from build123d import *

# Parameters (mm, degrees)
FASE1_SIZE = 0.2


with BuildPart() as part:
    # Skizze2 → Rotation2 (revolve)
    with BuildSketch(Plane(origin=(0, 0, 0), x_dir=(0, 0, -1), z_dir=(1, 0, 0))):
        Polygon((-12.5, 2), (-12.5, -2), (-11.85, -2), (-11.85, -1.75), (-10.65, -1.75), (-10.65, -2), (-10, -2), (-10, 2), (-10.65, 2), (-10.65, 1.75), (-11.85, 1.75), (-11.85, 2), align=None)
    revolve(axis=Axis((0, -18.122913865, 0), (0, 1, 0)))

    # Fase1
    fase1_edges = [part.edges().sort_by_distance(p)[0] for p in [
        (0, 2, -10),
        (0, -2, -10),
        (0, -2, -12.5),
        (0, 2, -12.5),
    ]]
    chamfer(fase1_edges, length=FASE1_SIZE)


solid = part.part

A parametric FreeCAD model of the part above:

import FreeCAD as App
import Part
import Sketcher

V = App.Vector


def edges_at(feature, points):
    """Names of the edges that pass closest to the given points."""
    edges = feature.Shape.Edges
    near = lambda p: min(range(len(edges)), key=lambda i: edges[i].distToShape(Part.Vertex(*p))[0])
    return sorted({f"Edge{near(p) + 1}" for p in points})

doc = App.newDocument("Part")
body = doc.addObject("PartDesign::Body", "Body")

# Sketch on YZ plane
sketch1 = body.newObject("Sketcher::SketchObject", "Sketch")
sketch1.AttachmentSupport = (doc.getObject("YZ_Plane"), [""])
sketch1.MapMode = "FlatFace"
sketch1.addGeometry([
    Part.LineSegment(V(2, 12.5, 0), V(-2, 12.5, 0)),  # 0
    Part.LineSegment(V(-2, 12.5, 0), V(-2, 11.85, 0)),  # 1
    Part.LineSegment(V(-2, 11.85, 0), V(-1.75, 11.85, 0)),  # 2
    Part.LineSegment(V(-1.75, 11.85, 0), V(-1.75, 10.65, 0)),  # 3
    Part.LineSegment(V(-1.75, 10.65, 0), V(-2, 10.65, 0)),  # 4
    Part.LineSegment(V(-2, 10.65, 0), V(-2, 10, 0)),  # 5
    Part.LineSegment(V(-2, 10, 0), V(2, 10, 0)),  # 6
    Part.LineSegment(V(2, 10, 0), V(2, 10.65, 0)),  # 7
    Part.LineSegment(V(2, 10.65, 0), V(1.75, 10.65, 0)),  # 8
    Part.LineSegment(V(1.75, 10.65, 0), V(1.75, 11.85, 0)),  # 9
    Part.LineSegment(V(1.75, 11.85, 0), V(2, 11.85, 0)),  # 10
    Part.LineSegment(V(2, 11.85, 0), V(2, 12.5, 0)),  # 11
], False)
sketch1.addConstraint([
    Sketcher.Constraint("Coincident", 0, 2, 1, 1),
    Sketcher.Constraint("Coincident", 1, 2, 2, 1),
    Sketcher.Constraint("Coincident", 2, 2, 3, 1),
    Sketcher.Constraint("Coincident", 3, 2, 4, 1),
    Sketcher.Constraint("Coincident", 4, 2, 5, 1),
    Sketcher.Constraint("Coincident", 5, 2, 6, 1),
    Sketcher.Constraint("Coincident", 6, 2, 7, 1),
    Sketcher.Constraint("Coincident", 7, 2, 8, 1),
    Sketcher.Constraint("Coincident", 8, 2, 9, 1),
    Sketcher.Constraint("Coincident", 9, 2, 10, 1),
    Sketcher.Constraint("Coincident", 10, 2, 11, 1),
    Sketcher.Constraint("Coincident", 11, 2, 0, 1),
    Sketcher.Constraint("Horizontal", 0),
    Sketcher.Constraint("Vertical", 1),
    Sketcher.Constraint("Horizontal", 2),
    Sketcher.Constraint("Vertical", 3),
    Sketcher.Constraint("Horizontal", 4),
    Sketcher.Constraint("Vertical", 5),
    Sketcher.Constraint("Horizontal", 6),
    Sketcher.Constraint("Vertical", 7),
    Sketcher.Constraint("Horizontal", 8),
    Sketcher.Constraint("Vertical", 9),
    Sketcher.Constraint("Horizontal", 10),
    Sketcher.Constraint("Vertical", 11),
    Sketcher.Constraint("Symmetric", 4, 2, 7, 2, -2),
    Sketcher.Constraint("Symmetric", 2, 2, 9, 2, -2),
    Sketcher.Constraint("Vertical", 1, 2, 4, 2),
    Sketcher.Constraint("Vertical", 7, 2, 10, 2),
    Sketcher.Constraint("Equal", 1, 5),
    Sketcher.Constraint("DistanceX", 0, 2, 0, 1, 4.0),
    Sketcher.Constraint("DistanceY", 3, 2, 3, 1, 1.2),
    Sketcher.Constraint("DistanceY", -1, 1, 5, 2, 10.0),
    Sketcher.Constraint("DistanceX", 2, 1, 2, 2, 0.25),
    Sketcher.Constraint("DistanceY", 1, 2, 1, 1, 0.65),
])
revolution = body.newObject("PartDesign::Revolution", "Revolution")
revolution.Profile = sketch1
revolution.ReferenceAxis = (sketch1, ["H_Axis"])
revolution.Angle = 360
doc.recompute()

chamfer = body.newObject("PartDesign::Chamfer", "Chamfer")
chamfer.Base = (revolution, edges_at(revolution, [
    (0, 2, -10),
    (0, -2, -10),
    (0, -2, -12.5),
    (0, 2, -12.5),
]))
chamfer.Size = 0.2

doc.recompute()
